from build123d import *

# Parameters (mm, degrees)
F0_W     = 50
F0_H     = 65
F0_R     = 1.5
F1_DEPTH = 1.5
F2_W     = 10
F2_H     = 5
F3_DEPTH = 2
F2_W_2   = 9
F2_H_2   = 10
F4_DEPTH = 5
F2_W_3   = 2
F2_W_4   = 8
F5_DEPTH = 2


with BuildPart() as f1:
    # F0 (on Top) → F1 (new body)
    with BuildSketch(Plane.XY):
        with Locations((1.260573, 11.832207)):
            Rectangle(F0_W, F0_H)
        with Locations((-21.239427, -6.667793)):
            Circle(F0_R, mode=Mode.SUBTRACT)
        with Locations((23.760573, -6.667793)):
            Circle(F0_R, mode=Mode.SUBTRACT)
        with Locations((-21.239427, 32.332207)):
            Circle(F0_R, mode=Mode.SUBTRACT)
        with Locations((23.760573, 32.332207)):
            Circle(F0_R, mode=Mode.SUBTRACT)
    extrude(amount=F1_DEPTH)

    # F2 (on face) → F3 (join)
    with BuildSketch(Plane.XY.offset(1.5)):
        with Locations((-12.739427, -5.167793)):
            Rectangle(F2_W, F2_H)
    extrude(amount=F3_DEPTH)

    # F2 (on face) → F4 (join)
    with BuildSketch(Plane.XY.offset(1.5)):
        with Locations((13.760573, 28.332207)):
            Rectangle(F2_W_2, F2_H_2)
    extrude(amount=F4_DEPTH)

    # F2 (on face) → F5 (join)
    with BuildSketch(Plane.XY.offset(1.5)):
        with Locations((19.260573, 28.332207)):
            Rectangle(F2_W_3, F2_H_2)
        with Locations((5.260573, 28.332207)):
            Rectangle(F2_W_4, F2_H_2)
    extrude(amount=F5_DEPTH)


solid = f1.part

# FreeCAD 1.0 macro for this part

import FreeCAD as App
import Part
import Sketcher
from FreeCAD import Vector
Q = App.Units.Quantity

doc = App.newDocument("Part")
body = doc.addObject("PartDesign::Body", "Body")

sketch1 = doc.addObject("Sketcher::SketchObject", "Sketch")
body.addObject(sketch1)
sketch1.AttachmentSupport = (doc.XY_Plane, [""])
sketch1.MapMode = "FlatFace"
sketch1.addGeometry([
    Part.LineSegment(Vector(-23.7, 44.3, 0), Vector(-23.7, -20.7, 0)),
    Part.LineSegment(Vector(-23.7, -20.7, 0), Vector(26.3, -20.7, 0)),
    Part.LineSegment(Vector(26.3, -20.7, 0), Vector(26.3, 44.3, 0)),
    Part.LineSegment(Vector(26.3, 44.3, 0), Vector(-23.7, 44.3, 0)),
    Part.Circle(Vector(-21.2, -6.7, 0), Vector(0, 0, 1), 1.5),
    Part.Circle(Vector(23.8, -6.7, 0), Vector(0, 0, 1), 1.5),
    Part.Circle(Vector(-21.2, 32.3, 0), Vector(0, 0, 1), 1.5),
    Part.Circle(Vector(23.8, 32.3, 0), Vector(0, 0, 1), 1.5),
], False)
sketch1.addConstraint([
    Sketcher.Constraint("Coincident", 0, 2, 1, 1),
    Sketcher.Constraint("Coincident", 1, 2, 2, 1),
    Sketcher.Constraint("Coincident", 2, 2, 3, 1),
    Sketcher.Constraint("Coincident", 3, 2, 0, 1),
    Sketcher.Constraint("Vertical", 0),
    Sketcher.Constraint("Horizontal", 1),
    Sketcher.Constraint("Vertical", 2),
    Sketcher.Constraint("Horizontal", 3),
    Sketcher.Constraint("Equal", 4, 5),
    Sketcher.Constraint("Equal", 5, 6),
    Sketcher.Constraint("Equal", 6, 7),
    Sketcher.Constraint("Horizontal", 4, 3, 5, 3),
    Sketcher.Constraint("Horizontal", 6, 3, 7, 3),
    Sketcher.Constraint("Vertical", 4, 3, 6, 3),
    Sketcher.Constraint("Vertical", 5, 3, 7, 3),
    Sketcher.Constraint("Diameter", 4, Q("3 mm")),
    Sketcher.Constraint("DistanceX", 1, 1, 1, 2, Q("50 mm")),
    Sketcher.Constraint("DistanceY", 0, 2, 0, 1, Q("65 mm")),
    Sketcher.Constraint("DistanceX", 4, 3, 5, 3, Q("45 mm")),
    Sketcher.Constraint("DistanceY", 4, 3, 6, 3, Q("39 mm")),
    Sketcher.Constraint("DistanceY", 0, 2, 4, 3, Q("14 mm")),
    Sketcher.Constraint("DistanceX", 0, 2, 4, 3, Q("2.5 mm")),
    Sketcher.Constraint("DistanceX", 4, 3, -1, 1, Q("21.239427 mm")),
    Sketcher.Constraint("DistanceY", 4, 3, -1, 1, Q("6.667793 mm")),
])
pad1 = doc.addObject("PartDesign::Pad", "Pad")
body.addObject(pad1)
pad1.Profile = sketch1
pad1.Length = 1.5

sketch2 = doc.addObject("Sketcher::SketchObject", "Sketch001")
body.addObject(sketch2)
sketch2.AttachmentSupport = (doc.XY_Plane, [""])
sketch2.MapMode = "FlatFace"
sketch2.AttachmentOffset = App.Placement(Vector(0, 0, 1.5), App.Rotation())
sketch2.addGeometry([
    Part.LineSegment(Vector(-18, -3, 0), Vector(-18, -8, 0)),
    Part.LineSegment(Vector(-18, -8, 0), Vector(-8, -8, 0)),
    Part.LineSegment(Vector(-8, -8, 0), Vector(-8, -3, 0)),
    Part.LineSegment(Vector(-8, -3, 0), Vector(-18, -3, 0)),
], False)
sketch2.addConstraint([
    Sketcher.Constraint("Coincident", 0, 2, 1, 1),
    Sketcher.Constraint("Coincident", 1, 2, 2, 1),
    Sketcher.Constraint("Coincident", 2, 2, 3, 1),
    Sketcher.Constraint("Coincident", 3, 2, 0, 1),
    Sketcher.Constraint("Vertical", 0),
    Sketcher.Constraint("Horizontal", 1),
    Sketcher.Constraint("Vertical", 2),
    Sketcher.Constraint("Horizontal", 3),
    Sketcher.Constraint("DistanceX", 1, 1, 1, 2, Q("10 mm")),
    Sketcher.Constraint("DistanceY", 0, 2, 0, 1, Q("5 mm")),
    Sketcher.Constraint("DistanceX", 0, 2, -1, 1, Q("17.739427 mm")),
    Sketcher.Constraint("DistanceY", 0, 2, -1, 1, Q("7.667793 mm")),
])
pad2 = doc.addObject("PartDesign::Pad", "Pad001")
body.addObject(pad2)
pad2.Profile = sketch2
pad2.Length = 2

sketch3 = doc.addObject("Sketcher::SketchObject", "Sketch002")
body.addObject(sketch3)
sketch3.AttachmentSupport = (doc.XY_Plane, [""])
sketch3.MapMode = "FlatFace"
sketch3.AttachmentOffset = App.Placement(Vector(0, 0, 1.5), App.Rotation())
sketch3.addGeometry([
    Part.LineSegment(Vector(9, 33, 0), Vector(9, 23, 0)),
    Part.LineSegment(Vector(9, 23, 0), Vector(18, 23, 0)),
    Part.LineSegment(Vector(18, 23, 0), Vector(18, 33, 0)),
    Part.LineSegment(Vector(18, 33, 0), Vector(9, 33, 0)),
], False)
sketch3.addConstraint([
    Sketcher.Constraint("Coincident", 0, 2, 1, 1),
    Sketcher.Constraint("Coincident", 1, 2, 2, 1),
    Sketcher.Constraint("Coincident", 2, 2, 3, 1),
    Sketcher.Constraint("Coincident", 3, 2, 0, 1),
    Sketcher.Constraint("Vertical", 0),
    Sketcher.Constraint("Horizontal", 1),
    Sketcher.Constraint("Vertical", 2),
    Sketcher.Constraint("Horizontal", 3),
    Sketcher.Constraint("DistanceX", 1, 1, 1, 2, Q("9 mm")),
    Sketcher.Constraint("DistanceY", 0, 2, 0, 1, Q("10 mm")),
    Sketcher.Constraint("DistanceX", -1, 1, 0, 2, Q("9.260573 mm")),
    Sketcher.Constraint("DistanceY", -1, 1, 0, 2, Q("23.332207 mm")),
])
pad3 = doc.addObject("PartDesign::Pad", "Pad002")
body.addObject(pad3)
pad3.Profile = sketch3
pad3.Length = 5

sketch4 = doc.addObject("Sketcher::SketchObject", "Sketch003")
body.addObject(sketch4)
sketch4.AttachmentSupport = (doc.XY_Plane, [""])
sketch4.MapMode = "FlatFace"
sketch4.AttachmentOffset = App.Placement(Vector(0, 0, 1.5), App.Rotation())
sketch4.addGeometry([
    Part.LineSegment(Vector(18.3, 33.3, 0), Vector(18.3, 23.3, 0)),
    Part.LineSegment(Vector(18.3, 23.3, 0), Vector(20.3, 23.3, 0)),
    Part.LineSegment(Vector(20.3, 23.3, 0), Vector(20.3, 33.3, 0)),
    Part.LineSegment(Vector(20.3, 33.3, 0), Vector(18.3, 33.3, 0)),
    Part.LineSegment(Vector(1.3, 33.3, 0), Vector(1.3, 23.3, 0)),
    Part.LineSegment(Vector(1.3, 23.3, 0), Vector(9.3, 23.3, 0)),
    Part.LineSegment(Vector(9.3, 23.3, 0), Vector(9.3, 33.3, 0)),
    Part.LineSegment(Vector(9.3, 33.3, 0), Vector(1.3, 33.3, 0)),
], False)
sketch4.addConstraint([
    Sketcher.Constraint("Coincident", 0, 2, 1, 1),
    Sketcher.Constraint("Coincident", 1, 2, 2, 1),
    Sketcher.Constraint("Coincident", 2, 2, 3, 1),
    Sketcher.Constraint("Coincident", 3, 2, 0, 1),
    Sketcher.Constraint("Coincident", 4, 2, 5, 1),
    Sketcher.Constraint("Coincident", 5, 2, 6, 1),
    Sketcher.Constraint("Coincident", 6, 2, 7, 1),
    Sketcher.Constraint("Coincident", 7, 2, 4, 1),
    Sketcher.Constraint("Vertical", 0),
    Sketcher.Constraint("Horizontal", 1),
    Sketcher.Constraint("Vertical", 2),
    Sketcher.Constraint("Horizontal", 3),
    Sketcher.Constraint("Vertical", 4),
    Sketcher.Constraint("Horizontal", 5),
    Sketcher.Constraint("Vertical", 6),
    Sketcher.Constraint("Horizontal", 7),
    Sketcher.Constraint("Horizontal", 1, 2, 4, 2),
    Sketcher.Constraint("Horizontal", 3, 2, 6, 2),
    Sketcher.Constraint("DistanceX", 1, 1, 1, 2, Q("2 mm")),
    Sketcher.Constraint("DistanceX", 5, 1, 5, 2, Q("8 mm")),
    Sketcher.Constraint("DistanceY", 0, 2, 0, 1, Q("10 mm")),
    Sketcher.Constraint("DistanceX", 4, 2, 0, 2, Q("17 mm")),
    Sketcher.Constraint("DistanceX", -1, 1, 0, 2, Q("18.260573 mm")),
    Sketcher.Constraint("DistanceY", -1, 1, 0, 2, Q("23.332207 mm")),
])
pad4 = doc.addObject("PartDesign::Pad", "Pad003")
body.addObject(pad4)
pad4.Profile = sketch4
pad4.Length = 2

doc.recompute()
